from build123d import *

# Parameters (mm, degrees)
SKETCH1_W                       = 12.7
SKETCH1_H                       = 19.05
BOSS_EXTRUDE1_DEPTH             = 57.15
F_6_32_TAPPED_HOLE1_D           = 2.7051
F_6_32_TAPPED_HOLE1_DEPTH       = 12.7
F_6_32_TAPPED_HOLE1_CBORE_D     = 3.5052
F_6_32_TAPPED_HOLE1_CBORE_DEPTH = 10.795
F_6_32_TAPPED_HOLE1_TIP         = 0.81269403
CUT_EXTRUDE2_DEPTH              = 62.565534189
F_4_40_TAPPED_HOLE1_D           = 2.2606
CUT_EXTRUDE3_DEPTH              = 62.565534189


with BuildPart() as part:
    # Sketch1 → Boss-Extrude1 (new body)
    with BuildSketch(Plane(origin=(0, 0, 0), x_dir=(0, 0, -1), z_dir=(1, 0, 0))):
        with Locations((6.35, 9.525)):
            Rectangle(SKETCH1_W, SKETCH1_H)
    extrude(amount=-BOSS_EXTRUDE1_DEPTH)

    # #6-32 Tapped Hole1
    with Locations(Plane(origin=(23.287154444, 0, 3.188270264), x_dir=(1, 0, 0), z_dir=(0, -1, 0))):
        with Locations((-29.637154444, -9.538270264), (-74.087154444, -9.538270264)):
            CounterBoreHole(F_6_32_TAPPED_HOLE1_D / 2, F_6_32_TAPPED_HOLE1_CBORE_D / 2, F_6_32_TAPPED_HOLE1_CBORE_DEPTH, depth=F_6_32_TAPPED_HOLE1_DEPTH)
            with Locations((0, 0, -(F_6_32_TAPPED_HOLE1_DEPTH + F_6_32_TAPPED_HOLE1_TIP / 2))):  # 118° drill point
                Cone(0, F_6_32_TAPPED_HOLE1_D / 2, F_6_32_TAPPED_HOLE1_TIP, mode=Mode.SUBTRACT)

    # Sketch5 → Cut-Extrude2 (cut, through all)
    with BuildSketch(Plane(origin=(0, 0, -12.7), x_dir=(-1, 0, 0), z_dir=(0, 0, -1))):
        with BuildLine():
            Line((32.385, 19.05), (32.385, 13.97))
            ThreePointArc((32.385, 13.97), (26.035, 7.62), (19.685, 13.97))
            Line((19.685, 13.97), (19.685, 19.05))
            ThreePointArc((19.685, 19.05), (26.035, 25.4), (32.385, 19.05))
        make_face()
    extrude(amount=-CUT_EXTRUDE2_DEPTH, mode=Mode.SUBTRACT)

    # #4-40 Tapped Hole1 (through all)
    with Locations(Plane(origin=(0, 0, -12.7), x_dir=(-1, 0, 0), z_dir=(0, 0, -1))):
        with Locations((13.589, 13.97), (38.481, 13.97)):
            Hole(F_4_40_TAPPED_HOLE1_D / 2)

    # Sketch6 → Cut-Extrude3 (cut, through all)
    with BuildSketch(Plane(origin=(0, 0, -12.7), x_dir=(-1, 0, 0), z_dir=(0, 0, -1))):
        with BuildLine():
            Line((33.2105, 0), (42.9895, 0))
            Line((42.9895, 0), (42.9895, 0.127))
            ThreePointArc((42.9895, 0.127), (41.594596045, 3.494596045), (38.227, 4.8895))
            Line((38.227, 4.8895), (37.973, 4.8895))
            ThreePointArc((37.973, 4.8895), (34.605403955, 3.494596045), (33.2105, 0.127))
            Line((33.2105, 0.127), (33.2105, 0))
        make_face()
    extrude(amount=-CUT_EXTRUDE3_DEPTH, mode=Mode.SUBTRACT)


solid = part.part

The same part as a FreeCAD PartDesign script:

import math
import FreeCAD as App
import Part
import Sketcher
Q = App.Units.Quantity

doc = App.newDocument("Part")
body = doc.addObject("PartDesign::Body", "Body")

# Sketch on YZ plane
sketch1 = doc.addObject("Sketcher::SketchObject", "Sketch")
body.addObject(sketch1)
sketch1.AttachmentSupport = (doc.YZ_Plane, [""])
sketch1.MapMode = "FlatFace"
sketch1.addGeometry([
    Part.LineSegment(App.Vector(19.05, 0, 0), App.Vector(0, 0, 0)),
    Part.LineSegment(App.Vector(0, 0, 0), App.Vector(0, -12.7, 0)),
    Part.LineSegment(App.Vector(0, -12.7, 0), App.Vector(19.05, -12.7, 0)),
    Part.LineSegment(App.Vector(19.05, -12.7, 0), App.Vector(19.05, 0, 0)),
], False)
sketch1.addConstraint([
    Sketcher.Constraint("Coincident", 0, 2, 1, 1),
    Sketcher.Constraint("Coincident", 1, 2, 2, 1),
    Sketcher.Constraint("Coincident", 2, 2, 3, 1),
    Sketcher.Constraint("Coincident", 3, 2, 0, 1),
    Sketcher.Constraint("Horizontal", 0),
    Sketcher.Constraint("Vertical", 1),
    Sketcher.Constraint("Horizontal", 2),
    Sketcher.Constraint("Vertical", 3),
    Sketcher.Constraint("Coincident", 0, 2, -1, 1),
    Sketcher.Constraint("DistanceY", 1, 2, 1, 1, Q("0.5 in")),
    Sketcher.Constraint("DistanceX", 0, 2, 0, 1, Q("0.75 in")),
])
pad1 = doc.addObject("PartDesign::Pad", "Pad")
body.addObject(pad1)
pad1.Profile = sketch1
pad1.Length = Q("2.25 in")
pad1.Reversed = True

# Sketch on XZ plane
sketch2 = doc.addObject("Sketcher::SketchObject", "Sketch001")
body.addObject(sketch2)
sketch2.AttachmentSupport = (doc.XZ_Plane, [""])
sketch2.MapMode = "FlatFace"
sketch2.addGeometry([
    Part.Circle(App.Vector(-6.35, -6.35, 0), App.Vector(0, 0, 1), 1.35255),
    Part.Circle(App.Vector(-50.8, -6.35, 0), App.Vector(0, 0, 1), 1.35255),
], False)
sketch2.addConstraint([
    Sketcher.Constraint("Equal", 0, 1),
    Sketcher.Constraint("Horizontal", 0, 3, 1, 3),
    Sketcher.Constraint("DistanceX", 1, 3, -1, 1, Q("2 in")),
    Sketcher.Constraint("Diameter", 0, Q("0.1065 in")),
    Sketcher.Constraint("DistanceX", 0, 3, -1, 1, Q("0.25 in")),
    Sketcher.Constraint("DistanceY", 0, 3, -1, 1, Q("0.25 in")),
])
doc.recompute()
hole = doc.addObject("PartDesign::Hole", "Hole")
body.addObject(hole)
hole.Profile = sketch2
hole.ThreadType = "None"
hole.Diameter = Q("0.1065 in")
hole.DepthType = "Dimension"
hole.Depth = Q("0.5 in")
hole.DrillPoint = "Angled"
hole.DrillPointAngle = 118
hole.HoleCutType = "Counterbore"
hole.HoleCutDiameter = Q("0.138 in")
hole.HoleCutDepth = Q("0.425 in")

# Sketch on XY plane
sketch3 = doc.addObject("Sketcher::SketchObject", "Sketch002")
body.addObject(sketch3)
sketch3.AttachmentSupport = (doc.XY_Plane, [""])
sketch3.MapMode = "FlatFace"
sketch3.AttachmentOffset = App.Placement(App.Vector(0, 0, -0.5 * 25.4), App.Rotation())
sketch3.addGeometry([
    Part.LineSegment(App.Vector(-32.385, 13.97, 0), App.Vector(-32.385, 19.05, 0)),
    Part.ArcOfCircle(Part.Circle(App.Vector(-26.035, 19.05, 0), App.Vector(0, 0, 1), 6.35), math.radians(0), math.radians(180)),
    Part.LineSegment(App.Vector(-19.685, 19.05, 0), App.Vector(-19.685, 13.97, 0)),
    Part.ArcOfCircle(Part.Circle(App.Vector(-26.035, 13.97, 0), App.Vector(0, 0, 1), 6.35), math.radians(180), math.radians(360)),
], False)
sketch3.addConstraint([
    Sketcher.Constraint("Tangent", 0, 2, 1, 2),
    Sketcher.Constraint("Tangent", 1, 1, 2, 1),
    Sketcher.Constraint("Tangent", 2, 2, 3, 2),
    Sketcher.Constraint("Tangent", 3, 1, 0, 1),
    Sketcher.Constraint("Vertical", 0),
    Sketcher.Constraint("Vertical", 2),
    Sketcher.Constraint("Radius", 1, Q("0.25 in")),
    Sketcher.Constraint("DistanceY", 0, 1, 0, 2, Q("0.2 in")),
    Sketcher.Constraint("DistanceY", -1, 1, 1, 3, Q("0.75 in")),
    Sketcher.Constraint("DistanceX", 1, 3, -1, 1, Q("1.025 in")),
])
pocket1 = doc.addObject("PartDesign::Pocket", "Pocket")
body.addObject(pocket1)
pocket1.Profile = sketch3
pocket1.Type = "ThroughAll"
pocket1.Reversed = True

# Sketch on XY plane
sketch4 = doc.addObject("Sketcher::SketchObject", "Sketch003")
body.addObject(sketch4)
sketch4.AttachmentSupport = (doc.XY_Plane, [""])
sketch4.MapMode = "FlatFace"
sketch4.AttachmentOffset = App.Placement(App.Vector(0, 0, -0.5 * 25.4), App.Rotation())
sketch4.addGeometry([
    Part.Circle(App.Vector(-13.589, 13.97, 0), App.Vector(0, 0, 1), 1.1303),
    Part.Circle(App.Vector(-38.481, 13.97, 0), App.Vector(0, 0, 1), 1.1303),
], False)
sketch4.addConstraint([
    Sketcher.Constraint("Equal", 0, 1),
    Sketcher.Constraint("Horizontal", 0, 3, 1, 3),
    Sketcher.Constraint("Diameter", 0, Q("0.089 in")),
    Sketcher.Constraint("DistanceY", -1, 1, 0, 3, Q("0.55 in")),
    Sketcher.Constraint("DistanceX", 1, 3, 0, 3, Q("0.98 in")),
    Sketcher.Constraint("DistanceX", 0, 3, -1, 1, Q("0.535 in")),
])
doc.recompute()
hole2 = doc.addObject("PartDesign::Hole", "Hole001")
body.addObject(hole2)
hole2.Profile = sketch4
hole2.ThreadType = "None"
hole2.Diameter = Q("0.089 in")
hole2.DepthType = "ThroughAll"
hole2.Reversed = True

# Sketch on XY plane
sketch5 = doc.addObject("Sketcher::SketchObject", "Sketch004")
body.addObject(sketch5)
sketch5.AttachmentSupport = (doc.XY_Plane, [""])
sketch5.MapMode = "FlatFace"
sketch5.AttachmentOffset = App.Placement(App.Vector(0, 0, -0.5 * 25.4), App.Rotation())
sketch5.addGeometry([
    Part.LineSegment(App.Vector(-33.2105, 0, 0), App.Vector(-42.9895, 0, 0)),  # 0
    Part.LineSegment(App.Vector(-42.9895, 0, 0), App.Vector(-42.9895, 0.127, 0)),  # 1
    Part.ArcOfCircle(Part.Circle(App.Vector(-38.227, 0.127, 0), App.Vector(0, 0, 1), 4.7625), math.radians(90), math.radians(180)),  # 2
    Part.LineSegment(App.Vector(-38.227, 4.8895, 0), App.Vector(-37.973, 4.8895, 0)),  # 3
    Part.ArcOfCircle(Part.Circle(App.Vector(-37.973, 0.127, 0), App.Vector(0, 0, 1), 4.7625), math.radians(0), math.radians(90)),  # 4
    Part.LineSegment(App.Vector(-33.2105, 0.127, 0), App.Vector(-33.2105, 0, 0)),  # 5
], False)
sketch5.addConstraint([
    Sketcher.Constraint("Coincident", 0, 2, 1, 1),
    Sketcher.Constraint("Tangent", 1, 2, 2, 2),
    Sketcher.Constraint("Tangent", 2, 1, 3, 1),
    Sketcher.Constraint("Tangent", 3, 2, 4, 2),
    Sketcher.Constraint("Tangent", 4, 1, 5, 1),
    Sketcher.Constraint("Coincident", 5, 2, 0, 1),
    Sketcher.Constraint("Horizontal", 0),
    Sketcher.Constraint("Vertical", 1),
    Sketcher.Constraint("Horizontal", 3),
    Sketcher.Constraint("Vertical", 5),
    Sketcher.Constraint("Equal", 2, 4),
    Sketcher.Constraint("PointOnObject", 0, 2, -1),
    Sketcher.Constraint("Radius", 2, Q("0.1875 in")),
    Sketcher.Constraint("DistanceX", 3, 1, 3, 2, Q("0.01 in")),
    Sketcher.Constraint("DistanceY", 1, 1, 1, 2, Q("0.005 in")),
    Sketcher.Constraint("DistanceX", 2, 3, -1, 1, Q("1.505 in")),
])
pocket2 = doc.addObject("PartDesign::Pocket", "Pocket001")
body.addObject(pocket2)
pocket2.Profile = sketch5
pocket2.Type = "ThroughAll"
pocket2.Reversed = True

doc.recompute()
